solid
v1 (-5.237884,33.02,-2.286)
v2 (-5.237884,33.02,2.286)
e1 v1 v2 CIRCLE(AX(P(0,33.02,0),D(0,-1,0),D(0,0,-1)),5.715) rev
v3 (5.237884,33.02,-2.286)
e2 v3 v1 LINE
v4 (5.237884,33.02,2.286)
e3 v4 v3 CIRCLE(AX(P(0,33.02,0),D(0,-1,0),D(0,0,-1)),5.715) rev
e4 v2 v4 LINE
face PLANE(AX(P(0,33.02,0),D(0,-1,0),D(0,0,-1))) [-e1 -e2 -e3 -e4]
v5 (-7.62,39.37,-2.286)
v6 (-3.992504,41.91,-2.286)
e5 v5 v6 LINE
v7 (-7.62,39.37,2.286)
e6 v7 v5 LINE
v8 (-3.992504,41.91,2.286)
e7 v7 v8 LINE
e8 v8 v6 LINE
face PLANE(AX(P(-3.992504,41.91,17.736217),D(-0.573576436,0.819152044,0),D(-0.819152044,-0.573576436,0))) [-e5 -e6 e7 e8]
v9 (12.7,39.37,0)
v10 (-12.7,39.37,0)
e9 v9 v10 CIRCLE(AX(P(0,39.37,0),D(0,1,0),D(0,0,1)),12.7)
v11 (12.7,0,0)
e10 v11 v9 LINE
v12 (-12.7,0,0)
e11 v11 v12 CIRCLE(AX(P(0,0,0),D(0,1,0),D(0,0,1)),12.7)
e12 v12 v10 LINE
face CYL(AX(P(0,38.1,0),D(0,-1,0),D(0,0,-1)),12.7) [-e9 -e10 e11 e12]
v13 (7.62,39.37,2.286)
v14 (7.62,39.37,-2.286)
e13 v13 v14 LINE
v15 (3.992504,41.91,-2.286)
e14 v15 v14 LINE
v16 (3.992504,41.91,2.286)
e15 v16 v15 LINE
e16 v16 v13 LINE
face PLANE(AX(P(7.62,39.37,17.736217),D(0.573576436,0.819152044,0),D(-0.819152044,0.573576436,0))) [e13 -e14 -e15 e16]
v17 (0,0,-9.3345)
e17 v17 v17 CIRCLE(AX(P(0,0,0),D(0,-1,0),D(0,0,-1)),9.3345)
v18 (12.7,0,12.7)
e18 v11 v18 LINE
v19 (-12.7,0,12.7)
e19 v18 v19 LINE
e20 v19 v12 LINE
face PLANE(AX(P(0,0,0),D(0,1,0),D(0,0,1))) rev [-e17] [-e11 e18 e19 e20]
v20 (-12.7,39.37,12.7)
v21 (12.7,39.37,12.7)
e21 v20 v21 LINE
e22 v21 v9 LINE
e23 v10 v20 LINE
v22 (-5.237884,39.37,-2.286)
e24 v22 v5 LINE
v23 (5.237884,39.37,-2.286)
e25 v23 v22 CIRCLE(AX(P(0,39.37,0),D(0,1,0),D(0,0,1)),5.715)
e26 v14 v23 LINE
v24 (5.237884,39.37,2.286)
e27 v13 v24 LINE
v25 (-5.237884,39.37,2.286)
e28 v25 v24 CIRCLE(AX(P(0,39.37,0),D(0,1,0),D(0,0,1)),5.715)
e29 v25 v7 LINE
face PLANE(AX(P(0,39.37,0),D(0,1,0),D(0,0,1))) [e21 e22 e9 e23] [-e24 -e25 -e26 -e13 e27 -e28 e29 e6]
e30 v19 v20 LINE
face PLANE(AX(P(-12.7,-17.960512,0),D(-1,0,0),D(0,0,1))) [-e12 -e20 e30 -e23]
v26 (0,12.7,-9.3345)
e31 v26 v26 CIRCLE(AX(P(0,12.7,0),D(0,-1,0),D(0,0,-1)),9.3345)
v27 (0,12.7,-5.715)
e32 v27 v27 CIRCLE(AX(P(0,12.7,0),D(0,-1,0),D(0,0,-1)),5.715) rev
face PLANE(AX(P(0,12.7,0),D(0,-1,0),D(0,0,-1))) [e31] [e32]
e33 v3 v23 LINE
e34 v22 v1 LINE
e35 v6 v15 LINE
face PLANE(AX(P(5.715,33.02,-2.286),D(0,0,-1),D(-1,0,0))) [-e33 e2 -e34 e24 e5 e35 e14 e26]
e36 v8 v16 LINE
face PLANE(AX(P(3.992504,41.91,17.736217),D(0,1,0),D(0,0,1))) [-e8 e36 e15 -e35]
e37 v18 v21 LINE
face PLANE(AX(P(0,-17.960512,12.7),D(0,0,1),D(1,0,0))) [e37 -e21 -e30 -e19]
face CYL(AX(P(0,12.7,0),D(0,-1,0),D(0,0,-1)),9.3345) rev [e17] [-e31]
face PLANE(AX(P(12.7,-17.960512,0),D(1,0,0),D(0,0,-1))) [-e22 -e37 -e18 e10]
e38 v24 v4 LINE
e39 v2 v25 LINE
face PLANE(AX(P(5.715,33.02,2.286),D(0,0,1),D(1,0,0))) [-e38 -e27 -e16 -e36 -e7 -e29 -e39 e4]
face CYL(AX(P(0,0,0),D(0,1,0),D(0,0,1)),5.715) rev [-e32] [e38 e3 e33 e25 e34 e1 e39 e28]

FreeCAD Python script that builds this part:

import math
import FreeCAD as App
import Part
import Sketcher

V = App.Vector
Q = App.Units.Quantity


def add_polygon(sketch, points):
    """Adds a closed chain of lines whose ends are joined by coincident constraints."""
    first, n = sketch.GeometryCount, len(points)
    for a, b in zip(points, points[1:] + points[:1]):
        sketch.addGeometry(Part.LineSegment(App.Vector(*a, 0), App.Vector(*b, 0)), False)
    for i in range(n):
        sketch.addConstraint(Sketcher.Constraint("Coincident", first + i, 2, first + (i + 1) % n, 1))

doc = App.newDocument("Part")
body = doc.addObject("PartDesign::Body", "Body")

sketch1 = body.newObject("Sketcher::SketchObject", "Sketch")
sketch1.AttachmentSupport = (doc.getObject("XZ_Plane"), [""])
sketch1.MapMode = "FlatFace"
sketch1.addGeometry(Part.Circle(V(0, 0, 0), V(0, 0, 1), 13), False)
sketch1.addConstraint([
    Sketcher.Constraint("Coincident", 0, 3, -1, 1),
    Sketcher.Constraint("Diameter", 0, Q("1 in")),
])
pad1 = body.newObject("PartDesign::Pad", "Pad")
pad1.Profile = sketch1
pad1.Length = Q("1.5 in")
pad1.Reversed = True

sketch2 = body.newObject("Sketcher::SketchObject", "Sketch001")
sketch2.AttachmentSupport = (doc.getObject("XZ_Plane"), [""])
sketch2.MapMode = "FlatFace"
sketch2.AttachmentOffset = App.Placement(V(0, 0, -1.5 * 25.4), App.Rotation())
sketch2.addGeometry(Part.Circle(V(0, 0, 0), V(0, 0, 1), 6), False)
sketch2.addConstraint([
    Sketcher.Constraint("Coincident", 0, 3, -1, 1),
    Sketcher.Constraint("Diameter", 0, Q("0.45 in")),
])
pocket1 = body.newObject("PartDesign::Pocket", "Pocket")
pocket1.Profile = sketch2
pocket1.Type = "ThroughAll"
pocket1.Reversed = True

sketch3 = body.newObject("Sketcher::SketchObject", "Sketch002")
sketch3.AttachmentSupport = (doc.getObject("XZ_Plane"), [""])
sketch3.MapMode = "FlatFace"
sketch3.addGeometry(Part.Circle(V(0, 0, 0), V(0, 0, 1), 9), False)
sketch3.addConstraint([
    Sketcher.Constraint("Coincident", 0, 3, -1, 1),
    Sketcher.Constraint("Diameter", 0, Q("0.735 in")),
])
pocket2 = body.newObject("PartDesign::Pocket", "Pocket001")
pocket2.Profile = sketch3
pocket2.Length = Q("0.5 in")

sketch4 = body.newObject("Sketcher::SketchObject", "Sketch003")
sketch4.AttachmentSupport = (doc.getObject("XZ_Plane"), [""])
sketch4.MapMode = "FlatFace"
sketch4.AttachmentOffset = App.Placement(V(0, 0, -1.5 * 25.4), App.Rotation())
sketch4.addGeometry([
    Part.Circle(V(0, 0, 0), V(0, 0, 1), 13),
    Part.Circle(V(0, 0, 0), V(0, 0, 1), 6),
], False)
sketch4.addConstraint([
    Sketcher.Constraint("Coincident", 0, 3, -1, 1),
    Sketcher.Constraint("Coincident", 1, 3, -1, 1),
    Sketcher.Constraint("Diameter", 0, Q("1 in")),
    Sketcher.Constraint("Diameter", 1, Q("0.45 in")),
])
pad2 = body.newObject("PartDesign::Pad", "Pad001")
pad2.Profile = sketch4
pad2.Length = Q("0.05 in")
pad2.Reversed = True

sketch5 = body.newObject("Sketcher::SketchObject", "Sketch004")
sketch5.AttachmentSupport = (doc.getObject("XZ_Plane"), [""])
sketch5.MapMode = "FlatFace"
sketch5.AttachmentOffset = App.Placement(V(0, 0, -1.55 * 25.4), App.Rotation())
add_polygon(sketch5, [(-5.7, -2.3), (-5.7, 2.3), (5.7, 2.3), (5.7, -2.3)])
sketch5.addConstraint([
    Sketcher.Constraint("Vertical", 0),
    Sketcher.Constraint("Horizontal", 1),
    Sketcher.Constraint("Vertical", 2),
    Sketcher.Constraint("Horizontal", 3),
    Sketcher.Constraint("Symmetric", 0, 2, 2, 2, -1, 1),
    Sketcher.Constraint("DistanceX", 1, 1, 1, 2, Q("0.45 in")),
    Sketcher.Constraint("DistanceY", 0, 1, 0, 2, Q("0.18 in")),
])
pad3 = body.newObject("PartDesign::Pad", "Pad002")
pad3.Profile = sketch5
pad3.Length = Q("0.25 in")

sketch6 = body.newObject("Sketcher::SketchObject", "Sketch005")
sketch6.AttachmentSupport = (doc.getObject("XY_Plane"), [""])
sketch6.MapMode = "FlatFace"
sketch6.AttachmentOffset = App.Placement(V(0, 0, -0.09 * 25.4), App.Rotation())
add_polygon(sketch6, [(7.6, 39.4), (-7.6, 39.4), (-4, 41.9), (4, 41.9)])
sketch6.addConstraint([
    Sketcher.Constraint("Horizontal", 0),
    Sketcher.Constraint("Horizontal", 2),
    Sketcher.Constraint("Equal", 1, 3),
    Sketcher.Constraint("DistanceX", 0, 2, 0, 1, Q("0.6 in")),
    Sketcher.Constraint("Angle", 1, Q("35 deg")),
    Sketcher.Constraint("DistanceX", 0, 2, -1, 1, Q("0.3 in")),
    Sketcher.Constraint("DistanceY", 0, 2, 1, 2, Q("0.1 in")),
    Sketcher.Constraint("DistanceY", -1, 1, 0, 2, Q("1.55 in")),
])
pad4 = body.newObject("PartDesign::Pad", "Pad003")
pad4.Profile = sketch6
pad4.Length = Q("0.18 in")

sketch7 = body.newObject("Sketcher::SketchObject", "Sketch006")
sketch7.AttachmentSupport = (doc.getObject("XZ_Plane"), [""])
sketch7.MapMode = "FlatFace"
sketch7.addGeometry([
    Part.ArcOfCircle(Part.Circle(V(0, 0, 0), V(0, 0, 1), 13), math.radians(0), math.radians(90)),
    Part.LineSegment(V(0, 13, 0), V(13, 13, 0)),
    Part.LineSegment(V(13, 13, 0), V(13, 0, 0)),
    Part.ArcOfCircle(Part.Circle(V(0, 0, 0), V(0, 0, 1), 13), math.radians(90), math.radians(180)),
    Part.LineSegment(V(-13, 0, 0), V(-13, 13, 0)),
    Part.LineSegment(V(-13, 13, 0), V(0, 13, 0)),
], False)
sketch7.addConstraint([
    Sketcher.Constraint("Tangent", 0, 2, 1, 1),
    Sketcher.Constraint("Coincident", 1, 2, 2, 1),
    Sketcher.Constraint("Tangent", 2, 2, 0, 1),
    Sketcher.Constraint("Tangent", 3, 2, 4, 1),
    Sketcher.Constraint("Coincident", 4, 2, 5, 1),
    Sketcher.Constraint("Tangent", 5, 2, 3, 1),
    Sketcher.Constraint("Horizontal", 1),
    Sketcher.Constraint("Vertical", 2),
    Sketcher.Constraint("Vertical", 4),
    Sketcher.Constraint("Horizontal", 5),
    Sketcher.Constraint("Coincident", 0, 3, -1, 1),
    Sketcher.Constraint("Coincident", 3, 3, -1, 1),
    Sketcher.Constraint("Equal", 0, 3),
    Sketcher.Constraint("Radius", 0, Q("0.5 in")),
])
pad5 = body.newObject("PartDesign::Pad", "Pad004")
pad5.Profile = sketch7
pad5.Length = Q("1.55 in")
pad5.Reversed = True

doc.recompute()
